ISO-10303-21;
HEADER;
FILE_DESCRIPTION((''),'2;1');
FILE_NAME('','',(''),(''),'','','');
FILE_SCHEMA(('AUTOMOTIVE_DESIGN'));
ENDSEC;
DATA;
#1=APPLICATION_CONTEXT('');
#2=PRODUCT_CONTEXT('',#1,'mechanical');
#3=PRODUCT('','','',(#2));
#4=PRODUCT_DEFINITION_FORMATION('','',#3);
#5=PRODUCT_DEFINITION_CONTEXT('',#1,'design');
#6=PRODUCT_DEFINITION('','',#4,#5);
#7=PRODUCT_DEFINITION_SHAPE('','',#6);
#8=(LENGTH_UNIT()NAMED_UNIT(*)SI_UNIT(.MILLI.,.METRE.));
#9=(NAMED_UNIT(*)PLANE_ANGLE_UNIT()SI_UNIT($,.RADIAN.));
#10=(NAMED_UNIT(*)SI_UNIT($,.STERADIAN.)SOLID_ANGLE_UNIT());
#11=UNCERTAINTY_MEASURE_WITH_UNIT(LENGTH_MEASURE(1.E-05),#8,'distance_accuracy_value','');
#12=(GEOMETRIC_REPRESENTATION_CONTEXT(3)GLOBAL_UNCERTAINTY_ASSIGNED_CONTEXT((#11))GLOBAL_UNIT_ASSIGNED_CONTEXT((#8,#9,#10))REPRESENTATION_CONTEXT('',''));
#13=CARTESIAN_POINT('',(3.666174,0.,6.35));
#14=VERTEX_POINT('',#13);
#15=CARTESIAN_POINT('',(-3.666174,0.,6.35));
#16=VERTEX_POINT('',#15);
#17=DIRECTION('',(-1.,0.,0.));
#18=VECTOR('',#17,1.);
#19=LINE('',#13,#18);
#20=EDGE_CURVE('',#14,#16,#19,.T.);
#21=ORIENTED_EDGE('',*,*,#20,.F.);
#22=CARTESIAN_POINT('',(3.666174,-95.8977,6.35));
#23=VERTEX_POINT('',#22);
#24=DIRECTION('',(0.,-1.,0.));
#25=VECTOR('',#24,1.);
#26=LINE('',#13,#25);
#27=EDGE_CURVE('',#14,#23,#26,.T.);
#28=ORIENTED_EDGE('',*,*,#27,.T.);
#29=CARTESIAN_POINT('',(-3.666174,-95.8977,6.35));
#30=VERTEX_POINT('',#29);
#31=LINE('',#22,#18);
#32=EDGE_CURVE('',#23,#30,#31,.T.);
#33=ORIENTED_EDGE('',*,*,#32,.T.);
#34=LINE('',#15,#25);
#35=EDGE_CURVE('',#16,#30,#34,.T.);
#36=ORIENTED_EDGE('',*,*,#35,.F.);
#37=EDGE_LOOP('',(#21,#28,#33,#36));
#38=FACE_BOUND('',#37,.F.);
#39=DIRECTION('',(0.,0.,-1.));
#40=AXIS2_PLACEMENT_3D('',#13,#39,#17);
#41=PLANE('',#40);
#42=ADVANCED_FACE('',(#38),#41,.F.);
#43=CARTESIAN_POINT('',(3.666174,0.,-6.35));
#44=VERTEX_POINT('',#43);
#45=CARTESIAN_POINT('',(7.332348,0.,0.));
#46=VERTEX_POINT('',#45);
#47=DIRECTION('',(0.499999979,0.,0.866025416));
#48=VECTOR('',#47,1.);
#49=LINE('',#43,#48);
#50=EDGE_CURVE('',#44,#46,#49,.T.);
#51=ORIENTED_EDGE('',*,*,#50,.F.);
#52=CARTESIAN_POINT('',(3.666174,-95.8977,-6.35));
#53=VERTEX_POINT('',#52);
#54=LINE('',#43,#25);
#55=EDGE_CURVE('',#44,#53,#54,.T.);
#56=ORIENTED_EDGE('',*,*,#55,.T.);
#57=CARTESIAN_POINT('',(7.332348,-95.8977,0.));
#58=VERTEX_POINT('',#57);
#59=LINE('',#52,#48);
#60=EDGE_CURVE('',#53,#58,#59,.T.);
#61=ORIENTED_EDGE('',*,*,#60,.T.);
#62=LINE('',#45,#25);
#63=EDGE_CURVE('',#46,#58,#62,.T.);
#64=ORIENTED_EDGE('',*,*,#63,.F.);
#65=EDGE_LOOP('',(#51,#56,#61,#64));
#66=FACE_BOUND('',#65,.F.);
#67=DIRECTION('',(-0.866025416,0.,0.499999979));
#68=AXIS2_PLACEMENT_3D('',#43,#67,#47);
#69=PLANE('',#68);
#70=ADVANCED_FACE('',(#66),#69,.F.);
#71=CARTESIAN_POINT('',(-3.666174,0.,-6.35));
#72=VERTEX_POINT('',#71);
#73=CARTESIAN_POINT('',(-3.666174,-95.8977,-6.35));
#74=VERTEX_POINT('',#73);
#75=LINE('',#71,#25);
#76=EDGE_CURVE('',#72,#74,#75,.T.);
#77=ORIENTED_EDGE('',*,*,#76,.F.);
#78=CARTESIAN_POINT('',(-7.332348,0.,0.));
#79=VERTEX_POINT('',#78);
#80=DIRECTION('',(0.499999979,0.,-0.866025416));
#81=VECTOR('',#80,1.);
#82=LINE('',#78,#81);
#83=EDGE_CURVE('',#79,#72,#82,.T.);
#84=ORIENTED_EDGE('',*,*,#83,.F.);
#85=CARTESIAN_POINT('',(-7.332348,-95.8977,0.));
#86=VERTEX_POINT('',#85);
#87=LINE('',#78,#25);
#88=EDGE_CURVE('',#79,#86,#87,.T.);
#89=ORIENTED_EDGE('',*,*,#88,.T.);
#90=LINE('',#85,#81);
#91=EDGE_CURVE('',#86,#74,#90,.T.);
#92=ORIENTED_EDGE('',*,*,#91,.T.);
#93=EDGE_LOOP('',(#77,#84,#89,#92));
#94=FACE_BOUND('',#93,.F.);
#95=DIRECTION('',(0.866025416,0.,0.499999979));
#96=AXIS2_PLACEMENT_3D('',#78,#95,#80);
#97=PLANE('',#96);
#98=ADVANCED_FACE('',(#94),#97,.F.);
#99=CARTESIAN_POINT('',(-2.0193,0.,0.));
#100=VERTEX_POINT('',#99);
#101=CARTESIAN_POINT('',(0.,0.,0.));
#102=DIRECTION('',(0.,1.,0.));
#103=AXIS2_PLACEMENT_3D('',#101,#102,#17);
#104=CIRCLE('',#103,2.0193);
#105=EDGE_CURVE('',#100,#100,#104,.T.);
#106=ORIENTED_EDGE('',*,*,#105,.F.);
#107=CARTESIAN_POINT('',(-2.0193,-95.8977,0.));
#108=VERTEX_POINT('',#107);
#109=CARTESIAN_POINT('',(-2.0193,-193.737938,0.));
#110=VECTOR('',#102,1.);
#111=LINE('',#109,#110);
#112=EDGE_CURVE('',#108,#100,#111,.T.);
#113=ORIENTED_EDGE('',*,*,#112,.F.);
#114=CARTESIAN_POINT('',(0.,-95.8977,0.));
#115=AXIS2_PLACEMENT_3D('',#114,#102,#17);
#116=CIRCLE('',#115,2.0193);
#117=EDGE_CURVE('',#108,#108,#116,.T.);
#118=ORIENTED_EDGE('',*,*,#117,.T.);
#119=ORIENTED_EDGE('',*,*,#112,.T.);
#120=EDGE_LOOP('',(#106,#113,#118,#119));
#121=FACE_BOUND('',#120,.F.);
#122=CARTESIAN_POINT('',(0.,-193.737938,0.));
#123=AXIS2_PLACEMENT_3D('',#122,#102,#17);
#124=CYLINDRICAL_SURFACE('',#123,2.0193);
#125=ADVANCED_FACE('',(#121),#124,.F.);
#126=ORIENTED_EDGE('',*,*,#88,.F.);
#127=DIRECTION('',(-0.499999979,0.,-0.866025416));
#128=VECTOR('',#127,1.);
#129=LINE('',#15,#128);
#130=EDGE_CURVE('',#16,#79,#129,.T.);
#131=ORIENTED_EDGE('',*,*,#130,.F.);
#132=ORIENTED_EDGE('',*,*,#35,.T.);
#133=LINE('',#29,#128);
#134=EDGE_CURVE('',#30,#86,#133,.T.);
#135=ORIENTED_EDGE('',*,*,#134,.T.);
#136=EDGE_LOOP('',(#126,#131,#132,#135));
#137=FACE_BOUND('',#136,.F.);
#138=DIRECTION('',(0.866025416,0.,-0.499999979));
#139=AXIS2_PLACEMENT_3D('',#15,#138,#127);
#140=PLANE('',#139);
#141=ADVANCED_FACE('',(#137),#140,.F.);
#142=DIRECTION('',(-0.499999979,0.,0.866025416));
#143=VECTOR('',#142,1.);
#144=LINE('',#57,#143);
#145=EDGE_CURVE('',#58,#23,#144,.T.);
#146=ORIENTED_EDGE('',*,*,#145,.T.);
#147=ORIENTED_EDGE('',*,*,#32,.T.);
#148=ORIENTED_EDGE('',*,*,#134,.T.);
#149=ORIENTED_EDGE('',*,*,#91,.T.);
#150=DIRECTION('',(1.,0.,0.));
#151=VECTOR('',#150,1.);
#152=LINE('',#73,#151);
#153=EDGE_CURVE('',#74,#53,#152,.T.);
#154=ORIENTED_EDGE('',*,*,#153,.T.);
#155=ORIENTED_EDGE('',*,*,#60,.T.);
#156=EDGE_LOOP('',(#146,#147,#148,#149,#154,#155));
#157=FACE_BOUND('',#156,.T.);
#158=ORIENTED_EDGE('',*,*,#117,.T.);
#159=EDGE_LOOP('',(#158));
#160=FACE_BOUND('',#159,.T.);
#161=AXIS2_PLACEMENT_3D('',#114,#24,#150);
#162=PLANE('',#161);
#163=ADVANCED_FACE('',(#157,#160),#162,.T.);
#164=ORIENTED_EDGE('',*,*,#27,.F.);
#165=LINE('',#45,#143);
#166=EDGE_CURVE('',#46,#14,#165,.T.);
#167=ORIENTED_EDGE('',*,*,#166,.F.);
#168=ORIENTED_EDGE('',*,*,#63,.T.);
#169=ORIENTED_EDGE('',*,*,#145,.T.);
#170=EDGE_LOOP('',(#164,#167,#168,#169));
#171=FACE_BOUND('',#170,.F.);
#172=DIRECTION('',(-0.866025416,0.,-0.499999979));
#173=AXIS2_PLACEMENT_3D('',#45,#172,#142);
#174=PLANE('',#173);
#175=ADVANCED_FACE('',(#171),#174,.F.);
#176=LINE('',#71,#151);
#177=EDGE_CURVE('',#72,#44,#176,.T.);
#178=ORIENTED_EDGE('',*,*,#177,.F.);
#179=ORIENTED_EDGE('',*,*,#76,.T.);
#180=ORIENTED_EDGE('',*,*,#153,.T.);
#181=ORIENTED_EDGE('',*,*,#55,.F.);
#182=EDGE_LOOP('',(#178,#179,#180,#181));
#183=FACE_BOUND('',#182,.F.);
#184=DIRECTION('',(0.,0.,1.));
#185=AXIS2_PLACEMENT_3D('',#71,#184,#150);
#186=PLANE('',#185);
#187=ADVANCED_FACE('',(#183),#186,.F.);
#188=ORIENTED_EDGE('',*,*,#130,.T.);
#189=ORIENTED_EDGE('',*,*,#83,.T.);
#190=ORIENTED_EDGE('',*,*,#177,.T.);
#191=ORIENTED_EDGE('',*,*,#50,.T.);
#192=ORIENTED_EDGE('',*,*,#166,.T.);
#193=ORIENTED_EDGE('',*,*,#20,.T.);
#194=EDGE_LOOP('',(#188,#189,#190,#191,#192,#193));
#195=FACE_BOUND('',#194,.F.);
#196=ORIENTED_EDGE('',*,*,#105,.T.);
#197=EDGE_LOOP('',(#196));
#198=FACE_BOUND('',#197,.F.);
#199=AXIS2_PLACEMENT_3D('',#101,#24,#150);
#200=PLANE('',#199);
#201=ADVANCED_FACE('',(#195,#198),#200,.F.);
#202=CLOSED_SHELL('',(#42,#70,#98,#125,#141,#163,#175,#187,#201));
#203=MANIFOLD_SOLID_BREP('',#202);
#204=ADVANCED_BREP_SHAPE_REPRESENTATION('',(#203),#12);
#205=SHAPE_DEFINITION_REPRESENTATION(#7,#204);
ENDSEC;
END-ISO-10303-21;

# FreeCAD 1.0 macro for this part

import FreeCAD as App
import Part
import Sketcher
Q = App.Units.Quantity

doc = App.newDocument("Part")
body = doc.addObject("PartDesign::Body", "Body")

# Sketch on XZ plane
sketch1 = body.newObject("Sketcher::SketchObject", "Sketch")
sketch1.AttachmentSupport = (doc.getObject("XZ_Plane"), [""])
sketch1.MapMode = "FlatFace"
sketch1.addGeometry(Part.LineSegment(App.Vector(3.666174, 6.35, 0), App.Vector(-3.666174, 6.35, 0)), False)
sketch1.addGeometry(Part.LineSegment(App.Vector(-3.666174, 6.35, 0), App.Vector(-7.332348, 0, 0)), False)
sketch1.addGeometry(Part.LineSegment(App.Vector(-7.332348, 0, 0), App.Vector(-3.666174, -6.35, 0)), False)
sketch1.addGeometry(Part.LineSegment(App.Vector(-3.666174, -6.35, 0), App.Vector(3.666174, -6.35, 0)), False)
sketch1.addGeometry(Part.LineSegment(App.Vector(3.666174, -6.35, 0), App.Vector(7.332348, 0, 0)), False)
sketch1.addGeometry(Part.LineSegment(App.Vector(7.332348, 0, 0), App.Vector(3.666174, 6.35, 0)), False)
sketch1.addConstraint(Sketcher.Constraint("Coincident", 0, 2, 1, 1))
sketch1.addConstraint(Sketcher.Constraint("Coincident", 1, 2, 2, 1))
sketch1.addConstraint(Sketcher.Constraint("Coincident", 2, 2, 3, 1))
sketch1.addConstraint(Sketcher.Constraint("Coincident", 3, 2, 4, 1))
sketch1.addConstraint(Sketcher.Constraint("Coincident", 4, 2, 5, 1))
sketch1.addConstraint(Sketcher.Constraint("Coincident", 5, 2, 0, 1))
sketch1.addConstraint(Sketcher.Constraint("Horizontal", 0))
sketch1.addConstraint(Sketcher.Constraint("Horizontal", 3))
sketch1.addConstraint(Sketcher.Constraint("Symmetric", 0, 2, 3, 2, -1, 1))
sketch1.addConstraint(Sketcher.Constraint("Symmetric", 1, 2, 4, 2, -1, 1))
sketch1.addConstraint(Sketcher.Constraint("PointOnObject", 1, 2, -1))
sketch1.addConstraint(Sketcher.Constraint("Parallel", 2, 5))
sketch1.addConstraint(Sketcher.Constraint("Vertical", 0, 2, 2, 2))
sketch1.addConstraint(Sketcher.Constraint("Angle", 1, Q("-119.999999 deg")))
sketch1.addConstraint(Sketcher.Constraint("DistanceY", 2, 2, 0, 2, Q("0.5 in")))
sketch1.addConstraint(Sketcher.Constraint("DistanceX", 0, 2, 0, 1, Q("7.332348 mm")))
pad1 = body.newObject("PartDesign::Pad", "Pad")
pad1.Profile = sketch1
pad1.Length = Q("3.7755 in")

# Sketch on XZ plane
sketch2 = body.newObject("Sketcher::SketchObject", "Sketch001")
sketch2.AttachmentSupport = (doc.getObject("XZ_Plane"), [""])
sketch2.MapMode = "FlatFace"
sketch2.AttachmentOffset = App.Placement(App.Vector(0, 0, 3.7755 * 25.4), App.Rotation())
sketch2.addGeometry(Part.Circle(App.Vector(0, 0, 0), App.Vector(0, 0, 1), 2.0193), False)
sketch2.addConstraint(Sketcher.Constraint("Coincident", 0, 3, -1, 1))
sketch2.addConstraint(Sketcher.Constraint("Diameter", 0, Q("0.159 in")))
doc.recompute()
hole = body.newObject("PartDesign::Hole", "Hole")
hole.Profile = sketch2
hole.ThreadType = "None"
hole.Diameter = Q("0.159 in")
hole.DepthType = "ThroughAll"

doc.recompute()
